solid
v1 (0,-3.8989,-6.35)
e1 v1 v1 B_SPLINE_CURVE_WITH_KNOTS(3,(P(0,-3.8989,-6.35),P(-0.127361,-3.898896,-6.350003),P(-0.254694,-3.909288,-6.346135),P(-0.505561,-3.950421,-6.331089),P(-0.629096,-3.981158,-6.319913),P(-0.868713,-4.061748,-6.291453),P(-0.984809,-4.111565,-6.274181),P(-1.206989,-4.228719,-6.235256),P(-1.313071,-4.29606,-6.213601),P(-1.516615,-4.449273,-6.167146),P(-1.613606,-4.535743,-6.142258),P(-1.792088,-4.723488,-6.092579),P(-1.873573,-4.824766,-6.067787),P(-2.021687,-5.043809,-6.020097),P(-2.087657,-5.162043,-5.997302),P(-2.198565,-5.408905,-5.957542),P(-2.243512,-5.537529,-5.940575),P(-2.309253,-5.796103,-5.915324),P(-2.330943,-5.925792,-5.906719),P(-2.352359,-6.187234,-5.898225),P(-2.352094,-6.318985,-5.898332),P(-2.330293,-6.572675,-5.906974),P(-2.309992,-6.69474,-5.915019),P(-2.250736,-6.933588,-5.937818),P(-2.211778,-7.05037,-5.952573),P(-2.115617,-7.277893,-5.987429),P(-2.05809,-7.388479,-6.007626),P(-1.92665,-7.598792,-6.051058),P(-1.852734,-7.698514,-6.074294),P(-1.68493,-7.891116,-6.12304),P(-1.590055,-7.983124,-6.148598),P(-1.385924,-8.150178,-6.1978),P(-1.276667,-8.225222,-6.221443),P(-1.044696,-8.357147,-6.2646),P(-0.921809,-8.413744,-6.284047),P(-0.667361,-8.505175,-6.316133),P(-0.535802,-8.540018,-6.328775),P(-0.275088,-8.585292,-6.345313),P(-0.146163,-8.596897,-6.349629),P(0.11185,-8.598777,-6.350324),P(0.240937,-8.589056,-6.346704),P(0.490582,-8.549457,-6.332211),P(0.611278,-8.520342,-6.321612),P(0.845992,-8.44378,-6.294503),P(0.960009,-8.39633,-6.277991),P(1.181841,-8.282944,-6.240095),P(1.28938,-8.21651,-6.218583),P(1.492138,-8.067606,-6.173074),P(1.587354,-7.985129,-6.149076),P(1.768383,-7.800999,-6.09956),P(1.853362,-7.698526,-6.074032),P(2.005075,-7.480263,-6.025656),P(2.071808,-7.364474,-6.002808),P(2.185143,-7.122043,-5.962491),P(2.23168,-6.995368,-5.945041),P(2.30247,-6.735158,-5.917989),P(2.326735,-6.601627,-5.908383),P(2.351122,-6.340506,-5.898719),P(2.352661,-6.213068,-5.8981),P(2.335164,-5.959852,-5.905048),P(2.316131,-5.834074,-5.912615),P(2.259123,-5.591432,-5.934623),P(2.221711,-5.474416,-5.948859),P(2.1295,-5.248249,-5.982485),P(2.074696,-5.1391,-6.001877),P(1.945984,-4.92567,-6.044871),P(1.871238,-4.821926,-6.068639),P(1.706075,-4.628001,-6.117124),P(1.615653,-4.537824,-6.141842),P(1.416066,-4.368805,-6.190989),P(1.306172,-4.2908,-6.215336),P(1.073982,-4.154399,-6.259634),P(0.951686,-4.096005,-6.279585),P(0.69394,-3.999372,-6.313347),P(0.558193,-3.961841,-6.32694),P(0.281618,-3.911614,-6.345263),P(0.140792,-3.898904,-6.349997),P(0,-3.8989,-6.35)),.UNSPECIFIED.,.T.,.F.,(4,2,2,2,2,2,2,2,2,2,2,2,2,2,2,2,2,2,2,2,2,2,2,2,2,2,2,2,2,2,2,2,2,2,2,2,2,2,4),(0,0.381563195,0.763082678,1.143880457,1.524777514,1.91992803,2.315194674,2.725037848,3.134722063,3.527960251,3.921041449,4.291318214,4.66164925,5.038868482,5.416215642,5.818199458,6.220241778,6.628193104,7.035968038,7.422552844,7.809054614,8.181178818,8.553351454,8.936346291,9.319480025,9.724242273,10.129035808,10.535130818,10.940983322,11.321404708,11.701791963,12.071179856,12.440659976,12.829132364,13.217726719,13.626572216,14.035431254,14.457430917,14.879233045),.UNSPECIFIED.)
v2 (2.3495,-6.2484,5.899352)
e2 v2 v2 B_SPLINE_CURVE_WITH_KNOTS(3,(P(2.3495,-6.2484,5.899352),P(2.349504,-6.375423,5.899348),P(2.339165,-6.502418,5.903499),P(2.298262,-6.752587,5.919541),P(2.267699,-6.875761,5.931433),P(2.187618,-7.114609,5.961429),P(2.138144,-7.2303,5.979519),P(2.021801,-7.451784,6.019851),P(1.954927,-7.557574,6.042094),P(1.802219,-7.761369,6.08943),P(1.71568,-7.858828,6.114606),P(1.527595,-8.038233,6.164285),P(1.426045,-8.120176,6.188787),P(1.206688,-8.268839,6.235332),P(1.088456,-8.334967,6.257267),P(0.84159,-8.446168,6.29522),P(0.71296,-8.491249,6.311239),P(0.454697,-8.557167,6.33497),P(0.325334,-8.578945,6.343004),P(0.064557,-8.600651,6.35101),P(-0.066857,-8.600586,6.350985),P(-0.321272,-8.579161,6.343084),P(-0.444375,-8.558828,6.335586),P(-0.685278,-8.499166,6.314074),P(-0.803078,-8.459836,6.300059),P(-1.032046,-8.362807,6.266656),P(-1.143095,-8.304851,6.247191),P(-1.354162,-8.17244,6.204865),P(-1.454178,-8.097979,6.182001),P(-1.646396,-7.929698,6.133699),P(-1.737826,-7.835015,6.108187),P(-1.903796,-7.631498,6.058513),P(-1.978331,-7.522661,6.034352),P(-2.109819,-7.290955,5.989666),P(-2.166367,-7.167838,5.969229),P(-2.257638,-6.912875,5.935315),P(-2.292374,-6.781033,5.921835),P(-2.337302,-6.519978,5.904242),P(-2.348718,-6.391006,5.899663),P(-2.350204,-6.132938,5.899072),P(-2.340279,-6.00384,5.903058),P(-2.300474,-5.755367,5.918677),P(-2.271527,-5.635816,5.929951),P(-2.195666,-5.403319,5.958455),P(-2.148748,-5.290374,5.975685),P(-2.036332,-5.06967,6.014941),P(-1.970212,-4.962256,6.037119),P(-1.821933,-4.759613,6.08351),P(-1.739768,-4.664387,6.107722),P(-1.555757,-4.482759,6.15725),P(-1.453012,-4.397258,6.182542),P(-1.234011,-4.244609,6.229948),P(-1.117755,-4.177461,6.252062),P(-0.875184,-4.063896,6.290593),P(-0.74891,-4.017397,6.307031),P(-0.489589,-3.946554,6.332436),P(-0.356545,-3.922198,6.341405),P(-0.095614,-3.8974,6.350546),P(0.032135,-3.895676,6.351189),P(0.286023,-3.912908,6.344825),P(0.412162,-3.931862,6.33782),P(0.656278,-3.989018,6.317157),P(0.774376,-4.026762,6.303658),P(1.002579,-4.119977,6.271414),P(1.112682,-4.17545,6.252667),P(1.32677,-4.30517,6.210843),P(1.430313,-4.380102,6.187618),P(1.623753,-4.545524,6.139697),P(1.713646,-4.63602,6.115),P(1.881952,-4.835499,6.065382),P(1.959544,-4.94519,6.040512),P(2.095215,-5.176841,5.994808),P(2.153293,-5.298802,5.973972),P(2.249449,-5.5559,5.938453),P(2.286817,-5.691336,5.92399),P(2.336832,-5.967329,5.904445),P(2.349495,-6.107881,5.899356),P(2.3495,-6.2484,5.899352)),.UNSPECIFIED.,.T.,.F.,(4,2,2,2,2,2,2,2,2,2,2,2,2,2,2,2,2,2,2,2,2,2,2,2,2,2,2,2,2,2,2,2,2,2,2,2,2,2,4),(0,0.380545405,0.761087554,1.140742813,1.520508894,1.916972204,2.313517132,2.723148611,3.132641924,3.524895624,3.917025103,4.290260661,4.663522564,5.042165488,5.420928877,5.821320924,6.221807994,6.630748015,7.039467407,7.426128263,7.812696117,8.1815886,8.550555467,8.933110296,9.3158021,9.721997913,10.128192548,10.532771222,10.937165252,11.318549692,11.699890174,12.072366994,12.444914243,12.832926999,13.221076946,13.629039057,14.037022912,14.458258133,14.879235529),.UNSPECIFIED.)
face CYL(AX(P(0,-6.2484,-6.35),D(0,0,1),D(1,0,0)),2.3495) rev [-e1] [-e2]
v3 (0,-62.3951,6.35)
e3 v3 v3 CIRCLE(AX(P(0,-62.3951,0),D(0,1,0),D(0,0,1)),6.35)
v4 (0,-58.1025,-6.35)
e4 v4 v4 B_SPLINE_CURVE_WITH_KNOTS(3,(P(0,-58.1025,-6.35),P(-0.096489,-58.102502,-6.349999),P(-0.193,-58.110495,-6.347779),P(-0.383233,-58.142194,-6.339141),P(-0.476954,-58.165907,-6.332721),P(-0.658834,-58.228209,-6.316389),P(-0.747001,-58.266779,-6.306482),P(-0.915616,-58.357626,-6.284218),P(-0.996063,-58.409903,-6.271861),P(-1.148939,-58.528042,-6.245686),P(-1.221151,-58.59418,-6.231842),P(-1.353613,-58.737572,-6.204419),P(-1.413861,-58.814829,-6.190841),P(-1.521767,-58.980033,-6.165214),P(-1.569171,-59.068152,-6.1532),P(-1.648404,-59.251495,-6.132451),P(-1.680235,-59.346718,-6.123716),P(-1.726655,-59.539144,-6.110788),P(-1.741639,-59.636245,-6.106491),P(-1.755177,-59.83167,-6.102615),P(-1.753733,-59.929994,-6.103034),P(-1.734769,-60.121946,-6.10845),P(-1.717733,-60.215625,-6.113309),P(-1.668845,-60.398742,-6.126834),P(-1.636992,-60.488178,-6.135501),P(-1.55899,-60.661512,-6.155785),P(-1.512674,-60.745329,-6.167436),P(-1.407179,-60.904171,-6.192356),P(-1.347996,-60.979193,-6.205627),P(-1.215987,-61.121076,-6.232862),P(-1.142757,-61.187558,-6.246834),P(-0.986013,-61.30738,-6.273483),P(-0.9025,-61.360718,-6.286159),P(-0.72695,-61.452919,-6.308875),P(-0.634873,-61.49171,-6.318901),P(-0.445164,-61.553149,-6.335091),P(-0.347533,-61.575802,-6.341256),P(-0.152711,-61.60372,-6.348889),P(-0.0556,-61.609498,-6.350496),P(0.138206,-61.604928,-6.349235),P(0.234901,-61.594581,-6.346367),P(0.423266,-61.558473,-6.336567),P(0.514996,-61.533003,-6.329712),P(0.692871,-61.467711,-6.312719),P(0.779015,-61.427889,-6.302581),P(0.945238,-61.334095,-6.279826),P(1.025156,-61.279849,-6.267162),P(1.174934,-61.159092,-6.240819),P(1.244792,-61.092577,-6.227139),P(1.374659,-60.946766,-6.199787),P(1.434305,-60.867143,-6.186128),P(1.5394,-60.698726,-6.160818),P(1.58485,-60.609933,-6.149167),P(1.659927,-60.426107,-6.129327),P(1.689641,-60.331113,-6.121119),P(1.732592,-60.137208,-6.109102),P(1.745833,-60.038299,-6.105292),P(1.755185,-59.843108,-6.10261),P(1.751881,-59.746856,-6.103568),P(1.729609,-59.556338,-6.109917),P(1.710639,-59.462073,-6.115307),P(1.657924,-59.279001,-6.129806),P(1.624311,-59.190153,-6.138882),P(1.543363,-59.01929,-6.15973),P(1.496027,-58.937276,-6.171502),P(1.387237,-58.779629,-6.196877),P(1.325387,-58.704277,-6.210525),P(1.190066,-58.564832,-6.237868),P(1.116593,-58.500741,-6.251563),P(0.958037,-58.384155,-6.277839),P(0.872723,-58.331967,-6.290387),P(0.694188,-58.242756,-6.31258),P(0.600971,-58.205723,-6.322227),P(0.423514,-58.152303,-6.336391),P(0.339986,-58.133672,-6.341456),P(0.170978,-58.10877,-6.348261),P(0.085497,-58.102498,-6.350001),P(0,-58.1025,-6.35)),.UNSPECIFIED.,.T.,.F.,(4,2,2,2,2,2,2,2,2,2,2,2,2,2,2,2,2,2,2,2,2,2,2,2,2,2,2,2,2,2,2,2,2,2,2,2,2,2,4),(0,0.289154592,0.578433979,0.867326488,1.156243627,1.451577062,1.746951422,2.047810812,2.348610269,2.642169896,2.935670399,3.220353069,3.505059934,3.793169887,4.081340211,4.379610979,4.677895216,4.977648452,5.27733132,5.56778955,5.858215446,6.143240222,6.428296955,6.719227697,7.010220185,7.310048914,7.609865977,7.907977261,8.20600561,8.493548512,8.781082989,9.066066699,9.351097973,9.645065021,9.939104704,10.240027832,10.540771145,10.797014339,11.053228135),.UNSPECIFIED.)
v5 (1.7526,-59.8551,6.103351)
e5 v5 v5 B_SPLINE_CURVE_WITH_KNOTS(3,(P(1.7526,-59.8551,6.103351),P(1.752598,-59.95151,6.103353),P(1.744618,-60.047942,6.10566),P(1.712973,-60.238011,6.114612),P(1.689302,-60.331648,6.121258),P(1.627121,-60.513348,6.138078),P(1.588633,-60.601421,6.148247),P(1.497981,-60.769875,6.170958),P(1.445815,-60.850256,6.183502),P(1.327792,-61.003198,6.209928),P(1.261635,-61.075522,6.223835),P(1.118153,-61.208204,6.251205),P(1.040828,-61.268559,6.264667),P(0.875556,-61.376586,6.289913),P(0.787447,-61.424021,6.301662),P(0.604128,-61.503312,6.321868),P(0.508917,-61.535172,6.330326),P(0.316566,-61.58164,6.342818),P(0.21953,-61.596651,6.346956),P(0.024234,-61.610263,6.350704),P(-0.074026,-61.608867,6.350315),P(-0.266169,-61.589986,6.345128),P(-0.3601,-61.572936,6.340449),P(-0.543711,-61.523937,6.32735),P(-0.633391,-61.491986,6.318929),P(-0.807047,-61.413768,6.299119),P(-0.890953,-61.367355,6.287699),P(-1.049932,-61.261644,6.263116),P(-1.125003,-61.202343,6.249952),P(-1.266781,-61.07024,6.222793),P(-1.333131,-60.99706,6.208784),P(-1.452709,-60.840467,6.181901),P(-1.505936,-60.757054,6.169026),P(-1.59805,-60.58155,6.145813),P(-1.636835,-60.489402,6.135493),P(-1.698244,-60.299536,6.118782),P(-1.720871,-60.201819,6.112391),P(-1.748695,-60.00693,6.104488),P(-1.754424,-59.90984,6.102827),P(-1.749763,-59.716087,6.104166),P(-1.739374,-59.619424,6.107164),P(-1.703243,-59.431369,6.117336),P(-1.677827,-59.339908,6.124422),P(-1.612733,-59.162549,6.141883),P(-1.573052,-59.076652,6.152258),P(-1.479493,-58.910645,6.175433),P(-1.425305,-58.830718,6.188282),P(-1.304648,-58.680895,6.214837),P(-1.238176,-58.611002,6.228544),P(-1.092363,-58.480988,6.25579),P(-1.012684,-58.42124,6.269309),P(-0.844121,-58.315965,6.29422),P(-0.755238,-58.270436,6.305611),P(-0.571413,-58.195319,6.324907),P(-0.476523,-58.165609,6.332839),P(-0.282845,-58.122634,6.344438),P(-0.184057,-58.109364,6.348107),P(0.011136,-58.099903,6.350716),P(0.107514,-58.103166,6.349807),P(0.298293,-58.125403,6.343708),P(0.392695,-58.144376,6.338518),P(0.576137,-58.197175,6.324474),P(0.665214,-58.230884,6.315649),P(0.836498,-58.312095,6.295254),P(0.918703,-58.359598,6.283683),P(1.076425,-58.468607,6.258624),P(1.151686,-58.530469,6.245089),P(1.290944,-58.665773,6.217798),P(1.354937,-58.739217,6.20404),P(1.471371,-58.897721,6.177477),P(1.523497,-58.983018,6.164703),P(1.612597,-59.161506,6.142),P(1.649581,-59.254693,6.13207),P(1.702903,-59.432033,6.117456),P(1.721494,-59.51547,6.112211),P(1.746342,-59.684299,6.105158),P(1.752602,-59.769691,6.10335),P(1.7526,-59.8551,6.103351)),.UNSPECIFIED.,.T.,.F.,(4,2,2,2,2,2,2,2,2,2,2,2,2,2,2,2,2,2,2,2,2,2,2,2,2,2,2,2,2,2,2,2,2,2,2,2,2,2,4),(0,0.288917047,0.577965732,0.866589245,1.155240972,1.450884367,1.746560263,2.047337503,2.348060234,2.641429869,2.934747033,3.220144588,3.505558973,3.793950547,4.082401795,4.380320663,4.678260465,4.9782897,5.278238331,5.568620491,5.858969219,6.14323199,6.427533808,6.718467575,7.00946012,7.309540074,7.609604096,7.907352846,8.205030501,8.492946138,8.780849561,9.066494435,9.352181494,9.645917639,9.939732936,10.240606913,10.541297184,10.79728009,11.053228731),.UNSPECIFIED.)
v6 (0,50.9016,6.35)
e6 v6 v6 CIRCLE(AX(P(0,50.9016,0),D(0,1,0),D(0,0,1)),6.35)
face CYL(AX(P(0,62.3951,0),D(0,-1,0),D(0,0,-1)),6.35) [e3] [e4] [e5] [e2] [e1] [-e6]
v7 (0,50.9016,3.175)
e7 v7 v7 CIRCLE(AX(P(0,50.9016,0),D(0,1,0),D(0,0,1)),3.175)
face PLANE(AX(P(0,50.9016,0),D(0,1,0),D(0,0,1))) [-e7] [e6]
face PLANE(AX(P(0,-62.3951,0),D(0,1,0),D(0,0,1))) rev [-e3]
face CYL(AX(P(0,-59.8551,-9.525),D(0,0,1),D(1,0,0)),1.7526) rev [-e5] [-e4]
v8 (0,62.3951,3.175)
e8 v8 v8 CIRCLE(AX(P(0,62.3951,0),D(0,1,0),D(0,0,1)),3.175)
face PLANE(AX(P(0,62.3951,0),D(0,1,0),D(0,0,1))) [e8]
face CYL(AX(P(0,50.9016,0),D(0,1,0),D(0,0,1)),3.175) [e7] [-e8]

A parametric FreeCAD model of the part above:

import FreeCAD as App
import Part
import Sketcher

V = App.Vector
Q = App.Units.Quantity


def add_polygon(sketch, points):
    """Adds a closed chain of lines whose ends are joined by coincident constraints."""
    first, n = sketch.GeometryCount, len(points)
    for a, b in zip(points, points[1:] + points[:1]):
        sketch.addGeometry(Part.LineSegment(App.Vector(*a, 0), App.Vector(*b, 0)), False)
    for i in range(n):
        sketch.addConstraint(Sketcher.Constraint("Coincident", first + i, 2, first + (i + 1) % n, 1))

doc = App.newDocument("Part")
body = doc.addObject("PartDesign::Body", "Body")

sketch1 = body.newObject("Sketcher::SketchObject", "Sketch")
sketch1.AttachmentSupport = (doc.getObject("XZ_Plane"), [""])
sketch1.MapMode = "FlatFace"
sketch1.addGeometry(Part.Circle(V(0, 0, 0), V(0, 0, 1), 6), False)
sketch1.addConstraint([
    Sketcher.Constraint("Coincident", 0, 3, -1, 1),
    Sketcher.Constraint("Diameter", 0, Q("0.5 in")),
])
pad1 = body.newObject("PartDesign::Pad", "Pad")
pad1.Profile = sketch1
pad1.Length = Q("4.913 in")
pad1.Midplane = True

sketch2 = body.newObject("Sketcher::SketchObject", "Sketch001")
sketch2.AttachmentSupport = (doc.getObject("XZ_Plane"), [""])
sketch2.MapMode = "FlatFace"
sketch2.AttachmentOffset = App.Placement(V(0, 0, -2.4565 * 25.4), App.Rotation())
add_polygon(sketch2, [(-20, -20), (-20, 20), (20, 20), (20, -20)])
sketch2.addGeometry(Part.Circle(V(0, 0, 0), V(0, 0, 1), 3.2), False)
sketch2.addConstraint([
    Sketcher.Constraint("Vertical", 0),
    Sketcher.Constraint("Horizontal", 1),
    Sketcher.Constraint("Vertical", 2),
    Sketcher.Constraint("Horizontal", 3),
    Sketcher.Constraint("Coincident", 4, 3, -1, 1),
    Sketcher.Constraint("Symmetric", 0, 2, 2, 2, -1, 1),
    Sketcher.Constraint("Equal", 3, 0),
    Sketcher.Constraint("Diameter", 4, Q("0.25 in")),
    Sketcher.Constraint("DistanceX", 1, 1, 1, 2, 39.916),
])
pocket1 = body.newObject("PartDesign::Pocket", "Pocket")
pocket1.Profile = sketch2
pocket1.Length = Q("0.4525 in")
pocket1.Reversed = True

sketch3 = body.newObject("Sketcher::SketchObject", "Sketch002")
sketch3.AttachmentSupport = (doc.getObject("XY_Plane"), [""])
sketch3.MapMode = "FlatFace"
sketch3.addGeometry(Part.Circle(V(0, -59.9, 0), V(0, 0, 1), 1.8), False)
sketch3.addConstraint([
    Sketcher.Constraint("PointOnObject", 0, 3, -2),
    Sketcher.Constraint("Diameter", 0, Q("0.138 in")),
    Sketcher.Constraint("DistanceY", 0, 3, -1, 1, Q("2.3565 in")),
])
pocket2 = body.newObject("PartDesign::Pocket", "Pocket001")
pocket2.Profile = sketch3
pocket2.Length = Q("0.75 in")
pocket2.Midplane = True

sketch4 = body.newObject("Sketcher::SketchObject", "Sketch003")
sketch4.AttachmentSupport = (doc.getObject("XY_Plane"), [""])
sketch4.MapMode = "FlatFace"
sketch4.addGeometry(Part.Circle(V(0, -6.2, 0), V(0, 0, 1), 2.3), False)
sketch4.addConstraint([
    Sketcher.Constraint("PointOnObject", 0, 3, -2),
    Sketcher.Constraint("Diameter", 0, Q("0.185 in")),
    Sketcher.Constraint("DistanceY", 0, 3, -1, 1, Q("0.246 in")),
])
pocket3 = body.newObject("PartDesign::Pocket", "Pocket002")
pocket3.Profile = sketch4
pocket3.Length = Q("0.5 in")
pocket3.Midplane = True

doc.recompute()
